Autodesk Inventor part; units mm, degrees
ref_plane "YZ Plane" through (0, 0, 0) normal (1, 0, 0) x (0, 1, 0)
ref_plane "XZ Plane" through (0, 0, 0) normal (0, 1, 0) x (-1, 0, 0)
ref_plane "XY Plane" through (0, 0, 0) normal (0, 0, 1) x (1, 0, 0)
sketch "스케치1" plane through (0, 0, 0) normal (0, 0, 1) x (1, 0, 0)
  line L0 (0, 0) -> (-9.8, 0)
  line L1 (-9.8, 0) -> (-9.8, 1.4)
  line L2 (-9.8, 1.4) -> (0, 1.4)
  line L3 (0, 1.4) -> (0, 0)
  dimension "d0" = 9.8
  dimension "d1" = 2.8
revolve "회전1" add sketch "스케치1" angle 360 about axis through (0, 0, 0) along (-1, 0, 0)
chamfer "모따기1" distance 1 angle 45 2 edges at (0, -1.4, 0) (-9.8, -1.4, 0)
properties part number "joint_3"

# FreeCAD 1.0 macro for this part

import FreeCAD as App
import Part
import Sketcher
from FreeCAD import Vector


def edges_at(feature, points):
    """Names of the edges that pass closest to the given points."""
    edges = feature.Shape.Edges
    near = lambda p: min(range(len(edges)), key=lambda i: edges[i].distToShape(Part.Vertex(*p))[0])
    return sorted({f"Edge{near(p) + 1}" for p in points})

doc = App.newDocument("Part")
body = doc.addObject("PartDesign::Body", "Body")

# Sketch on XY plane
sketch1 = doc.addObject("Sketcher::SketchObject", "Sketch")
body.addObject(sketch1)
sketch1.AttachmentSupport = (doc.XY_Plane, [""])
sketch1.MapMode = "FlatFace"
sketch1.addGeometry([
    Part.LineSegment(Vector(-9.8, 0, 0), Vector(0, 0, 0)),
    Part.LineSegment(Vector(0, 0, 0), Vector(0, 1.4, 0)),
    Part.LineSegment(Vector(0, 1.4, 0), Vector(-9.8, 1.4, 0)),
    Part.LineSegment(Vector(-9.8, 1.4, 0), Vector(-9.8, 0, 0)),
], False)
sketch1.addConstraint([
    Sketcher.Constraint("Coincident", 0, 2, 1, 1),
    Sketcher.Constraint("Coincident", 1, 2, 2, 1),
    Sketcher.Constraint("Coincident", 2, 2, 3, 1),
    Sketcher.Constraint("Coincident", 3, 2, 0, 1),
    Sketcher.Constraint("Horizontal", 0),
    Sketcher.Constraint("Vertical", 1),
    Sketcher.Constraint("Horizontal", 2),
    Sketcher.Constraint("Vertical", 3),
    Sketcher.Constraint("Coincident", 0, 2, -1, 1),
    Sketcher.Constraint("DistanceX", 0, 1, 0, 2, 9.8),
    Sketcher.Constraint("DistanceY", 1, 1, 1, 2, 1.4),
])
revolution = doc.addObject("PartDesign::Revolution", "Revolution")
body.addObject(revolution)
revolution.Profile = sketch1
revolution.ReferenceAxis = (sketch1, ["H_Axis"])
revolution.Angle = 360
doc.recompute()

chamfer = doc.addObject("PartDesign::Chamfer", "Chamfer")
body.addObject(chamfer)
chamfer.Base = (revolution, edges_at(revolution, [(0, -1.4, 0), (-9.8, -1.4, 0)]))
chamfer.Size = 1

doc.recompute()
